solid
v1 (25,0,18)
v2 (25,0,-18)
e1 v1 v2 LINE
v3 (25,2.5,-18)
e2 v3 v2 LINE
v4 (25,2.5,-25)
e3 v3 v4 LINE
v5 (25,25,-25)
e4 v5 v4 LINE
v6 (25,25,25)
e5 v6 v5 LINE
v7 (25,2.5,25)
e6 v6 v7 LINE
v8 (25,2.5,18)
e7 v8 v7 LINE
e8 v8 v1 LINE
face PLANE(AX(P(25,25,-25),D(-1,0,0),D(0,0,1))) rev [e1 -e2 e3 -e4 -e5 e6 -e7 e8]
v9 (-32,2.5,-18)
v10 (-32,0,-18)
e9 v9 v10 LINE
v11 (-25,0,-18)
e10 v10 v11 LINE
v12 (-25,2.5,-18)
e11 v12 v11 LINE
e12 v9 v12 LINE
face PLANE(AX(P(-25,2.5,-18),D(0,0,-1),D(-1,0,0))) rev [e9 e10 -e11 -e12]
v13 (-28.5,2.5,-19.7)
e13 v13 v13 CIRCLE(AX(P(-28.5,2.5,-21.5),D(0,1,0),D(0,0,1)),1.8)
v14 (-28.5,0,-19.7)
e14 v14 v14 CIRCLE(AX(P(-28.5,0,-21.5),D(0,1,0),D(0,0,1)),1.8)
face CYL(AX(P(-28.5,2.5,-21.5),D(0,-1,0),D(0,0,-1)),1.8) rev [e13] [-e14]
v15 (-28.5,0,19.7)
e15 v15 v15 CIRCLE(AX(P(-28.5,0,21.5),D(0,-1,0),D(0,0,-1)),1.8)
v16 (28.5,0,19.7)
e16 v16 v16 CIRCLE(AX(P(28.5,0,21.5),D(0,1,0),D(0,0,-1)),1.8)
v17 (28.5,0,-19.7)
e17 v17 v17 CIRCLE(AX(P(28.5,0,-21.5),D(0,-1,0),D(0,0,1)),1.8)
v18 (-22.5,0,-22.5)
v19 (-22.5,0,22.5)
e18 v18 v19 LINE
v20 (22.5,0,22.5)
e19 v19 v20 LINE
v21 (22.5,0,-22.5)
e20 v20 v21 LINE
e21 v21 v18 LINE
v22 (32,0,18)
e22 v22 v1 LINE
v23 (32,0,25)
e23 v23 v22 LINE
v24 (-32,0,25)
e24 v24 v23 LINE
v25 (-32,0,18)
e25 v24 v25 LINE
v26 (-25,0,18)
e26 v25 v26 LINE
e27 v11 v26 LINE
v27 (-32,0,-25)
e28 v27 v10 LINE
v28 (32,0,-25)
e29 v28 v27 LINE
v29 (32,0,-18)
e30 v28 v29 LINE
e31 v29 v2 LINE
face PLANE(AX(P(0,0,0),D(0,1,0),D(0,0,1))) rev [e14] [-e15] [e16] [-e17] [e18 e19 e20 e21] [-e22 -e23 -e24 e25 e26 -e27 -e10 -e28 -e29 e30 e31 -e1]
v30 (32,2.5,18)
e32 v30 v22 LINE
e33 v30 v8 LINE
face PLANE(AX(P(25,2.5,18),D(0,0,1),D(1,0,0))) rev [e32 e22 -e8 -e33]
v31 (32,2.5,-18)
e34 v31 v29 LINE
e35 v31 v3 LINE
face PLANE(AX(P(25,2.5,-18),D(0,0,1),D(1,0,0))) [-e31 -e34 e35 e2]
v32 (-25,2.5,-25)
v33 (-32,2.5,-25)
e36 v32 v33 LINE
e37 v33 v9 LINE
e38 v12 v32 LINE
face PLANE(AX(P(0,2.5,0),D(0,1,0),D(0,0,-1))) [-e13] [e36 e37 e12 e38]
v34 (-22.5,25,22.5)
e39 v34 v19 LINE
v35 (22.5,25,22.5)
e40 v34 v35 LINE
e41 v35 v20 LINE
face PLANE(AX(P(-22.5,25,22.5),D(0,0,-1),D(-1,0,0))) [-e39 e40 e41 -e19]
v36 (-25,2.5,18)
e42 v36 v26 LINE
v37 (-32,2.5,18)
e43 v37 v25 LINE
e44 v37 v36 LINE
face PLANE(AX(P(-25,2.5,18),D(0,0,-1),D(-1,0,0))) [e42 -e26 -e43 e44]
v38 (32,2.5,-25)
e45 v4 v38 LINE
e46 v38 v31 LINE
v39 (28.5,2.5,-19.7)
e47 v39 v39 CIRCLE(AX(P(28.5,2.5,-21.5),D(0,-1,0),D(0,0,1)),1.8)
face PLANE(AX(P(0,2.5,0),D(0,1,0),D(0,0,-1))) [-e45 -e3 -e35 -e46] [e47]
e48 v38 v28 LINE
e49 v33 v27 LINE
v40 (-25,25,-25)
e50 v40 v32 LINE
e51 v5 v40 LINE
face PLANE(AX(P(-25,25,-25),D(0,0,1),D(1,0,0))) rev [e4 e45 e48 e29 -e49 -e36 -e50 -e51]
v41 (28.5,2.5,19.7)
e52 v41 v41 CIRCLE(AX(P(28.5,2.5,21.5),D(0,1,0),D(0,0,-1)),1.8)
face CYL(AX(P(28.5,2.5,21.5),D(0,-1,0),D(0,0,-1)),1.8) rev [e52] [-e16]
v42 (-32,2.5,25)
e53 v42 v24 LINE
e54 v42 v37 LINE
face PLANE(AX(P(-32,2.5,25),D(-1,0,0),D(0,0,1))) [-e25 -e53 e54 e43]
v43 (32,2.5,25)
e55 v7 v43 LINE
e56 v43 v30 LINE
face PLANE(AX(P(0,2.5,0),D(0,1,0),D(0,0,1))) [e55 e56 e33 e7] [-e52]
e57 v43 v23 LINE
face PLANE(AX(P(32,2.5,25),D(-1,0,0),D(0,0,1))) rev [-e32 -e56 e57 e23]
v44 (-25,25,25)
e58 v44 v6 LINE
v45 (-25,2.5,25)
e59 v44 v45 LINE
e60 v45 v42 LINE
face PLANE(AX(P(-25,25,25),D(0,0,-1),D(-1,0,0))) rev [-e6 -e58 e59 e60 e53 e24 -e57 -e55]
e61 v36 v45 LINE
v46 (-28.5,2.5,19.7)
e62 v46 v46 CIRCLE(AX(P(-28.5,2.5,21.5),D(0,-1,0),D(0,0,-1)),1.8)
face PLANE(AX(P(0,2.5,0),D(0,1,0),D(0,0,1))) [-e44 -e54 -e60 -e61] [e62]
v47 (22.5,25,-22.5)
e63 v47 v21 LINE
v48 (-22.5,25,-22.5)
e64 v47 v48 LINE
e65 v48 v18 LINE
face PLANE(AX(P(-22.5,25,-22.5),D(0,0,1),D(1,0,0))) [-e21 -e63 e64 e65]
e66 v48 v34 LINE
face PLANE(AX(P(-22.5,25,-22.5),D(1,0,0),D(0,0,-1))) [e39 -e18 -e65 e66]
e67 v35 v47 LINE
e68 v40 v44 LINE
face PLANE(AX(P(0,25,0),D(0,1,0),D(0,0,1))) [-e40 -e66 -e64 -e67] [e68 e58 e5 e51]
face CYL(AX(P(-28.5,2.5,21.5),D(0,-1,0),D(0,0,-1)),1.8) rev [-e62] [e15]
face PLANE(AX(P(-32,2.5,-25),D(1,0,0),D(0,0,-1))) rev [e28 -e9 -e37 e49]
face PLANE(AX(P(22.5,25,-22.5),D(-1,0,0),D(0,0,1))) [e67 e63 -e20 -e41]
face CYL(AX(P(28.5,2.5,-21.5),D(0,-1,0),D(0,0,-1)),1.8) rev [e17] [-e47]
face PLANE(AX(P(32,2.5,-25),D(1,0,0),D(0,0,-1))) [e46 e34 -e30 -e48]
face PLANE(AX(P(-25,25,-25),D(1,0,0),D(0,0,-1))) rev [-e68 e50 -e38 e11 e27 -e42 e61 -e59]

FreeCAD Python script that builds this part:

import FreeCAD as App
import Part
import Sketcher
from FreeCAD import Vector
Q = App.Units.Quantity


def add_polygon(sketch, points):
    """Adds a closed chain of lines whose ends are joined by coincident constraints."""
    first, n = sketch.GeometryCount, len(points)
    for a, b in zip(points, points[1:] + points[:1]):
        sketch.addGeometry(Part.LineSegment(App.Vector(*a, 0), App.Vector(*b, 0)), False)
    for i in range(n):
        sketch.addConstraint(Sketcher.Constraint("Coincident", first + i, 2, first + (i + 1) % n, 1))

doc = App.newDocument("Part")
body = doc.addObject("PartDesign::Body", "Body")

# Sketch on XZ plane
sketch1 = body.newObject("Sketcher::SketchObject", "Sketch")
sketch1.AttachmentSupport = (doc.getObject("XZ_Plane"), [""])
sketch1.MapMode = "FlatFace"
add_polygon(sketch1, [(-25, -25), (-25, 25), (25, 25), (25, -25)])  # lines 0-3
add_polygon(sketch1, [(22.5, 22.5), (-22.5, 22.5), (-22.5, -22.5), (22.5, -22.5)])  # lines 4-7
sketch1.addConstraint([
    Sketcher.Constraint("Vertical", 0),
    Sketcher.Constraint("Horizontal", 1),
    Sketcher.Constraint("Vertical", 2),
    Sketcher.Constraint("Horizontal", 3),
    Sketcher.Constraint("Horizontal", 4),
    Sketcher.Constraint("Vertical", 5),
    Sketcher.Constraint("Horizontal", 6),
    Sketcher.Constraint("Vertical", 7),
    Sketcher.Constraint("Symmetric", 0, 2, 2, 2, -1, 1),
    Sketcher.Constraint("Symmetric", 4, 2, 6, 2, -1, 1),
    Sketcher.Constraint("Equal", 3, 0),
    Sketcher.Constraint("Equal", 6, 5),
    Sketcher.Constraint("DistanceX", 1, 1, 1, 2, Q("50 mm")),
    Sketcher.Constraint("DistanceX", 4, 2, 4, 1, Q("45 mm")),
])
pad1 = body.newObject("PartDesign::Pad", "Pad")
pad1.Profile = sketch1
pad1.Length = 25
pad1.Reversed = True

# Sketch on XZ plane
sketch2 = body.newObject("Sketcher::SketchObject", "Sketch001")
sketch2.AttachmentSupport = (doc.getObject("XZ_Plane"), [""])
sketch2.MapMode = "FlatFace"
add_polygon(sketch2, [(-32, 25), (-32, 18), (-25, 18), (-25, 25)])  # lines 0-3
sketch2.addGeometry(Part.Circle(Vector(-28.5, 21.5, 0), Vector(0, 0, 1), 1.8), False)  # 4
sketch2.addConstraint([
    Sketcher.Constraint("Vertical", 0),
    Sketcher.Constraint("Horizontal", 1),
    Sketcher.Constraint("Vertical", 2),
    Sketcher.Constraint("Horizontal", 3),
    Sketcher.Constraint("Equal", 3, 0),
    Sketcher.Constraint("Diameter", 4, Q("3.6 mm")),
    Sketcher.Constraint("DistanceX", 1, 1, 1, 2, Q("7 mm")),
    Sketcher.Constraint("DistanceX", 0, 2, -1, 1, Q("32 mm")),
    Sketcher.Constraint("DistanceY", -1, 1, 0, 2, Q("18 mm")),
    Sketcher.Constraint("DistanceX", 4, 3, -1, 1, Q("28.5 mm")),
    Sketcher.Constraint("DistanceY", -1, 1, 4, 3, Q("21.5 mm")),
])
pad2 = body.newObject("PartDesign::Pad", "Pad001")
pad2.Profile = sketch2
pad2.Length = 2.5
pad2.Reversed = True
doc.recompute()

mirrored = body.newObject("PartDesign::Mirrored", "Mirrored")
mirrored.Originals = [pad2]
mirrored.MirrorPlane = (doc.getObject("YZ_Plane"), [""])
body.Tip = mirrored
doc.recompute()

mirrored2 = body.newObject("PartDesign::Mirrored", "Mirrored001")
mirrored2.Originals = [pad2]
mirrored2.MirrorPlane = (doc.getObject("XY_Plane"), [""])
body.Tip = mirrored2

# Sketch on XZ plane
sketch3 = body.newObject("Sketcher::SketchObject", "Sketch002")
sketch3.AttachmentSupport = (doc.getObject("XZ_Plane"), [""])
sketch3.MapMode = "FlatFace"
add_polygon(sketch3, [(32, -25), (32, -18), (25, -18), (25, -25)])  # lines 0-3
sketch3.addGeometry(Part.Circle(Vector(28.5, -21.5, 0), Vector(0, 0, 1), 1.8), False)  # 4
sketch3.addConstraint([
    Sketcher.Constraint("Vertical", 0),
    Sketcher.Constraint("Horizontal", 1),
    Sketcher.Constraint("Vertical", 2),
    Sketcher.Constraint("Horizontal", 3),
    Sketcher.Constraint("Equal", 3, 0),
    Sketcher.Constraint("Diameter", 4, Q("3.6 mm")),
    Sketcher.Constraint("DistanceX", 1, 2, 1, 1, Q("7 mm")),
    Sketcher.Constraint("DistanceX", -1, 1, 0, 2, Q("32 mm")),
    Sketcher.Constraint("DistanceY", 0, 2, -1, 1, Q("18 mm")),
    Sketcher.Constraint("DistanceX", -1, 1, 4, 3, Q("28.5 mm")),
    Sketcher.Constraint("DistanceY", 4, 3, -1, 1, Q("21.5 mm")),
])
pad3 = body.newObject("PartDesign::Pad", "Pad002")
pad3.Profile = sketch3
pad3.Length = 2.5
pad3.Reversed = True

doc.recompute()
